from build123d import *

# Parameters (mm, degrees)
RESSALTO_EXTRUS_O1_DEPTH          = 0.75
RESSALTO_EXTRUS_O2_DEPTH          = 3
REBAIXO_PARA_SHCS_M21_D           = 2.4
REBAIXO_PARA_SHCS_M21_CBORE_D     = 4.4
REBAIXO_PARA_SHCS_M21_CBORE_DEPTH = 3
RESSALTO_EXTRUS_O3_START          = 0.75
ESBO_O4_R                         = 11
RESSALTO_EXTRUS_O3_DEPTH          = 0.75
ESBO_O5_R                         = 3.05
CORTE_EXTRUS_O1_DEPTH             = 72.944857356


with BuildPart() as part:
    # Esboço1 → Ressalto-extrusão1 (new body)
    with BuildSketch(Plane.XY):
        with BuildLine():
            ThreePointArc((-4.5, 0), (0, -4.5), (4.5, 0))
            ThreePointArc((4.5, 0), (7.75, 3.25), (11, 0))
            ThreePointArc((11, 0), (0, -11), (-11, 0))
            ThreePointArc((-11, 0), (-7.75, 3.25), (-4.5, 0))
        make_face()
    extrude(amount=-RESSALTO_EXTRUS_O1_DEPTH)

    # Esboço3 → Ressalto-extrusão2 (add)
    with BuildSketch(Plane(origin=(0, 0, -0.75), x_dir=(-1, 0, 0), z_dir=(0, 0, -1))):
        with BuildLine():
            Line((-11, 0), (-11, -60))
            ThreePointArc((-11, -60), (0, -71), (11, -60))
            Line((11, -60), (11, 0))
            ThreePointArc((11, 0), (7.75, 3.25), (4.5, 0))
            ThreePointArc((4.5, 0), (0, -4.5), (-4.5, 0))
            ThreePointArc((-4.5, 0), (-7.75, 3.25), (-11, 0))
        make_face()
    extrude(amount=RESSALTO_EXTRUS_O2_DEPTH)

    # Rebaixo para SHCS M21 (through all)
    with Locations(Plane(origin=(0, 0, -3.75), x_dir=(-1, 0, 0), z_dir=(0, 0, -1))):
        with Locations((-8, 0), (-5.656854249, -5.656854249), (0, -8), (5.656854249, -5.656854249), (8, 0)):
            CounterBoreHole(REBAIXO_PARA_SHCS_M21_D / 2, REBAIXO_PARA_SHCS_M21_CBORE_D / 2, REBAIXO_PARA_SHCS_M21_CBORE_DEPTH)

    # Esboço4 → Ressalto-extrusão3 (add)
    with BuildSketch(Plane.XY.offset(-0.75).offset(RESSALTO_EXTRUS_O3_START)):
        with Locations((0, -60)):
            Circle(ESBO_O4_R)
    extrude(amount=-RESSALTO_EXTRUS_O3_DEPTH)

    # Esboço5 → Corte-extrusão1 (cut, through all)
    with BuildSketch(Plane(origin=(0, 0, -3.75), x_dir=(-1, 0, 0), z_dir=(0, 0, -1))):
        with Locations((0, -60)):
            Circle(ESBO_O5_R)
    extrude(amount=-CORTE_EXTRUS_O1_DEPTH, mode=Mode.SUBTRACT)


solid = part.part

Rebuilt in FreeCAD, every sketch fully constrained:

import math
import FreeCAD as App
import Part
import Sketcher

doc = App.newDocument("Part")
body = doc.addObject("PartDesign::Body", "Body")

# Sketch on XY plane
sketch1 = body.newObject("Sketcher::SketchObject", "Sketch")
sketch1.AttachmentSupport = (doc.getObject("XY_Plane"), [""])
sketch1.MapMode = "FlatFace"
sketch1.addGeometry([
    Part.ArcOfCircle(Part.Circle(App.Vector(0, 0, 0), App.Vector(0, 0, 1), 4.5), math.radians(180), math.radians(360)),
    Part.ArcOfCircle(Part.Circle(App.Vector(-7.8, 0, 0), App.Vector(0, 0, 1), 3.2), math.radians(0), math.radians(180)),
    Part.ArcOfCircle(Part.Circle(App.Vector(0, 0, 0), App.Vector(0, 0, 1), 11), math.radians(180), math.radians(360)),
    Part.ArcOfCircle(Part.Circle(App.Vector(7.8, 0, 0), App.Vector(0, 0, 1), 3.2), math.radians(0), math.radians(180)),
], False)
sketch1.addConstraint([
    Sketcher.Constraint("Tangent", 0, 1, 1, 1),
    Sketcher.Constraint("Tangent", 1, 2, 2, 1),
    Sketcher.Constraint("Tangent", 2, 2, 3, 1),
    Sketcher.Constraint("Tangent", 3, 2, 0, 2),
    Sketcher.Constraint("Coincident", 0, 3, -1, 1),
    Sketcher.Constraint("Coincident", 2, 3, -1, 1),
    Sketcher.Constraint("PointOnObject", 1, 3, -1),
    Sketcher.Constraint("PointOnObject", 3, 3, -1),
    Sketcher.Constraint("Radius", 2, 11.0),
    Sketcher.Constraint("Radius", 0, 4.5),
])
pad1 = body.newObject("PartDesign::Pad", "Pad")
pad1.Profile = sketch1
pad1.Length = 0.75
pad1.Reversed = True

# Sketch on XY plane
sketch2 = body.newObject("Sketcher::SketchObject", "Sketch001")
sketch2.AttachmentSupport = (doc.getObject("XY_Plane"), [""])
sketch2.MapMode = "FlatFace"
sketch2.AttachmentOffset = App.Placement(App.Vector(0, 0, -0.75), App.Rotation())
sketch2.addGeometry([
    Part.LineSegment(App.Vector(11, 0, 0), App.Vector(11, -60, 0)),  # 0
    Part.ArcOfCircle(Part.Circle(App.Vector(0, -60, 0), App.Vector(0, 0, 1), 11), math.radians(180), math.radians(360)),  # 1
    Part.LineSegment(App.Vector(-11, -60, 0), App.Vector(-11, 0, 0)),  # 2
    Part.ArcOfCircle(Part.Circle(App.Vector(-7.8, 0, 0), App.Vector(0, 0, 1), 3.2), math.radians(0), math.radians(180)),  # 3
    Part.ArcOfCircle(Part.Circle(App.Vector(0, 0, 0), App.Vector(0, 0, 1), 4.5), math.radians(180), math.radians(360)),  # 4
    Part.ArcOfCircle(Part.Circle(App.Vector(7.8, 0, 0), App.Vector(0, 0, 1), 3.2), math.radians(0), math.radians(180)),  # 5
], False)
sketch2.addConstraint([
    Sketcher.Constraint("Tangent", 0, 2, 1, 2),
    Sketcher.Constraint("Tangent", 1, 1, 2, 1),
    Sketcher.Constraint("Tangent", 2, 2, 3, 2),
    Sketcher.Constraint("Tangent", 3, 1, 4, 1),
    Sketcher.Constraint("Tangent", 4, 2, 5, 2),
    Sketcher.Constraint("Tangent", 5, 1, 0, 1),
    Sketcher.Constraint("Vertical", 0),
    Sketcher.Constraint("Vertical", 2),
    Sketcher.Constraint("Coincident", 4, 3, -1, 1),
    Sketcher.Constraint("Equal", 3, 5),
    Sketcher.Constraint("PointOnObject", 3, 3, -1),
    Sketcher.Constraint("PointOnObject", 5, 3, -1),
    Sketcher.Constraint("Radius", 1, 11.0),
    Sketcher.Constraint("Radius", 4, 4.5),
    Sketcher.Constraint("DistanceY", 0, 2, 0, 1, 60.0),
])
pad2 = body.newObject("PartDesign::Pad", "Pad001")
pad2.Profile = sketch2
pad2.Length = 3
pad2.Reversed = True

# Sketch on XY plane
sketch3 = body.newObject("Sketcher::SketchObject", "Sketch002")
sketch3.AttachmentSupport = (doc.getObject("XY_Plane"), [""])
sketch3.MapMode = "FlatFace"
sketch3.AttachmentOffset = App.Placement(App.Vector(0, 0, -3.75), App.Rotation())
sketch3.addGeometry([
    Part.Circle(App.Vector(8, 0, 0), App.Vector(0, 0, 1), 1.2),  # 0
    Part.Circle(App.Vector(5.7, -5.7, 0), App.Vector(0, 0, 1), 1.2),  # 1
    Part.Circle(App.Vector(0, -8, 0), App.Vector(0, 0, 1), 1.2),  # 2
    Part.Circle(App.Vector(-5.7, -5.7, 0), App.Vector(0, 0, 1), 1.2),  # 3
    Part.Circle(App.Vector(-8, 0, 0), App.Vector(0, 0, 1), 1.2),  # 4
], False)
sketch3.addConstraint([
    Sketcher.Constraint("Equal", 0, 1),
    Sketcher.Constraint("Equal", 1, 2),
    Sketcher.Constraint("Equal", 2, 3),
    Sketcher.Constraint("Equal", 3, 4),
    Sketcher.Constraint("Symmetric", 0, 3, 4, 3, -1, 1),
    Sketcher.Constraint("Symmetric", 1, 3, 3, 3, -2),
    Sketcher.Constraint("PointOnObject", 0, 3, -1),
    Sketcher.Constraint("PointOnObject", 2, 3, -2),
    Sketcher.Constraint("Diameter", 0, 2.4),
    Sketcher.Constraint("DistanceX", -1, 1, 0, 3, 8.0),
    Sketcher.Constraint("DistanceY", 2, 3, -1, 1, 8.0),
    Sketcher.Constraint("DistanceX", 3, 3, 1, 3, 11.313708),
    Sketcher.Constraint("DistanceY", 1, 3, -1, 1, 5.656854),
])
doc.recompute()
hole = body.newObject("PartDesign::Hole", "Hole")
hole.Profile = sketch3
hole.ThreadType = "None"
hole.Diameter = 2.4
hole.DepthType = "ThroughAll"
hole.HoleCutType = "Counterbore"
hole.HoleCutDiameter = 4.4
hole.HoleCutDepth = 3
hole.Reversed = True

# Sketch on XY plane
sketch4 = body.newObject("Sketcher::SketchObject", "Sketch003")
sketch4.AttachmentSupport = (doc.getObject("XY_Plane"), [""])
sketch4.MapMode = "FlatFace"
sketch4.addGeometry(Part.Circle(App.Vector(0, -60, 0), App.Vector(0, 0, 1), 11), False)
sketch4.addConstraint([
    Sketcher.Constraint("PointOnObject", 0, 3, -2),
    Sketcher.Constraint("Diameter", 0, 22.0),
    Sketcher.Constraint("DistanceY", 0, 3, -1, 1, 60.0),
])
pad3 = body.newObject("PartDesign::Pad", "Pad002")
pad3.Profile = sketch4
pad3.Length = 0.75
pad3.Reversed = True

# Sketch on XY plane
sketch5 = body.newObject("Sketcher::SketchObject", "Sketch004")
sketch5.AttachmentSupport = (doc.getObject("XY_Plane"), [""])
sketch5.MapMode = "FlatFace"
sketch5.AttachmentOffset = App.Placement(App.Vector(0, 0, -3.75), App.Rotation())
sketch5.addGeometry(Part.Circle(App.Vector(0, -60, 0), App.Vector(0, 0, 1), 3), False)
sketch5.addConstraint([
    Sketcher.Constraint("PointOnObject", 0, 3, -2),
    Sketcher.Constraint("Diameter", 0, 6.1),
    Sketcher.Constraint("DistanceY", 0, 3, -1, 1, 60.0),
])
pocket1 = body.newObject("PartDesign::Pocket", "Pocket")
pocket1.Profile = sketch5
pocket1.Type = "ThroughAll"
pocket1.Reversed = True

doc.recompute()
